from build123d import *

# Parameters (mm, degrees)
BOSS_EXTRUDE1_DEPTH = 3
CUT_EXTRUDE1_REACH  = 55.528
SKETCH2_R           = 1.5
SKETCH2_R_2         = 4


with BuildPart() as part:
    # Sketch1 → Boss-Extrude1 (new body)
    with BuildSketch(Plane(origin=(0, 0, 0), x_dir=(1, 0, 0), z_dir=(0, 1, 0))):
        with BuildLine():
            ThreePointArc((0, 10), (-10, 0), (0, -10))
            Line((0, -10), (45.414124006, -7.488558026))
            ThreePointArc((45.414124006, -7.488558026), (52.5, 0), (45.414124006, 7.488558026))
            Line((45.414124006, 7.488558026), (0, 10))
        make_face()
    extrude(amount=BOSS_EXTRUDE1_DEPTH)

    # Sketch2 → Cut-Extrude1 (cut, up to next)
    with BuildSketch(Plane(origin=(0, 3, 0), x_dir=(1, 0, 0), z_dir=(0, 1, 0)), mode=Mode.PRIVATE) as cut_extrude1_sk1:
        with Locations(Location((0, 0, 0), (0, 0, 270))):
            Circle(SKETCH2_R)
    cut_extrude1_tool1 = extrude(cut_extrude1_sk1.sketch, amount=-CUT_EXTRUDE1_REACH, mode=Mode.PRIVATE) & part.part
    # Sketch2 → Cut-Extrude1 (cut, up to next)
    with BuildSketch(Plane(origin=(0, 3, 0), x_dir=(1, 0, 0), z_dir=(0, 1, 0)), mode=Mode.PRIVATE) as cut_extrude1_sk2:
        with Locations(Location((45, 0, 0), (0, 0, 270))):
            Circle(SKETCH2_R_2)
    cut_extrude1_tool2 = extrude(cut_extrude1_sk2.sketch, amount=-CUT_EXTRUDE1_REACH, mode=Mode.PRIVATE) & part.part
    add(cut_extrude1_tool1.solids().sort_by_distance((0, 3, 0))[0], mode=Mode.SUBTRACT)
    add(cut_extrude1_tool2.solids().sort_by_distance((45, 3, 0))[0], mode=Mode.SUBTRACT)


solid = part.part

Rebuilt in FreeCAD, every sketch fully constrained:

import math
import FreeCAD as App
import Part
import Sketcher

V = App.Vector
Q = App.Units.Quantity

doc = App.newDocument("Part")
params = doc.addObject("Spreadsheet::Sheet", "Params")
for row, (alias, value) in enumerate([
    ("sketch1_radius", "10 mm"),
    ("sketch1_radius2", "7.5 mm"),
    ("pad1_length", "3 mm"),
    ("sketch2_diameter", "3 mm"),
    ("sketch3_diameter", "8 mm"),
], start=1):
    params.set(f"A{row}", alias)
    params.set(f"B{row}", "=" + value)
    params.setAlias(f"B{row}", alias)

body = doc.addObject("PartDesign::Body", "Body")

# Sketch on XZ plane
sketch1 = body.newObject("Sketcher::SketchObject", "Sketch")
sketch1.AttachmentSupport = (doc.getObject("XZ_Plane"), [""])
sketch1.MapMode = "FlatFace"
sketch1.addGeometry([
    Part.ArcOfCircle(Part.Circle(V(0, 0, 0), V(0, 0, 1), 10), math.radians(90), math.radians(270)),
    Part.LineSegment(V(0, 10, 0), V(45, 7, 0)),
    Part.ArcOfCircle(Part.Circle(V(45, 0, 0), V(0, 0, 1), 8), math.radians(-87), math.radians(87)),
    Part.LineSegment(V(45, -7, 0), V(0, -10, 0)),
], False)
sketch1.addConstraint([
    Sketcher.Constraint("Coincident", 0, 1, 1, 1),
    Sketcher.Constraint("Tangent", 1, 2, 2, 2),
    Sketcher.Constraint("Tangent", 2, 1, 3, 1),
    Sketcher.Constraint("Coincident", 3, 2, 0, 2),
    Sketcher.Constraint("Coincident", 0, 3, -1, 1),
    Sketcher.Constraint("Symmetric", 1, 2, 2, 1, -1),
    Sketcher.Constraint("PointOnObject", 0, 1, -2),
    Sketcher.Constraint("Radius", 0, Q("10 mm")),
    Sketcher.Constraint("Radius", 2, Q("7.5 mm")),
    Sketcher.Constraint("DistanceX", -1, 1, 2, 3, Q("45 mm")),
])
sketch1.setExpression("Constraints[7]", "Params.sketch1_radius")
sketch1.setExpression("Constraints[8]", "Params.sketch1_radius2")
pad1 = body.newObject("PartDesign::Pad", "Pad")
pad1.Profile = sketch1
pad1.setExpression("Length", "Params.pad1_length")
pad1.Reversed = True

# Sketch on XZ plane
sketch2 = body.newObject("Sketcher::SketchObject", "Sketch001")
sketch2.AttachmentSupport = (doc.getObject("XZ_Plane"), [""])
sketch2.MapMode = "FlatFace"
sketch2.AttachmentOffset = App.Placement(V(0, 0, -3), App.Rotation())
sketch2.addGeometry(Part.Circle(V(0, 0, 0), V(0, 0, 1), 1.5), False)
sketch2.addConstraint([
    Sketcher.Constraint("Coincident", 0, 3, -1, 1),
    Sketcher.Constraint("Diameter", 0, Q("3 mm")),
])
sketch2.setExpression("Constraints[1]", "Params.sketch2_diameter")
pocket1 = body.newObject("PartDesign::Pocket", "Pocket")
pocket1.Profile = sketch2
pocket1.Type = "UpToFirst"
pocket1.Reversed = True

# Sketch on XZ plane
sketch3 = body.newObject("Sketcher::SketchObject", "Sketch002")
sketch3.AttachmentSupport = (doc.getObject("XZ_Plane"), [""])
sketch3.MapMode = "FlatFace"
sketch3.AttachmentOffset = App.Placement(V(0, 0, -3), App.Rotation())
sketch3.addGeometry(Part.Circle(V(45, 0, 0), V(0, 0, 1), 4), False)
sketch3.addConstraint([
    Sketcher.Constraint("PointOnObject", 0, 3, -1),
    Sketcher.Constraint("Diameter", 0, Q("8 mm")),
    Sketcher.Constraint("DistanceX", -1, 1, 0, 3, Q("45 mm")),
])
sketch3.setExpression("Constraints[1]", "Params.sketch3_diameter")
pocket2 = body.newObject("PartDesign::Pocket", "Pocket001")
pocket2.Profile = sketch3
pocket2.Type = "UpToFirst"
pocket2.Reversed = True

doc.recompute()
